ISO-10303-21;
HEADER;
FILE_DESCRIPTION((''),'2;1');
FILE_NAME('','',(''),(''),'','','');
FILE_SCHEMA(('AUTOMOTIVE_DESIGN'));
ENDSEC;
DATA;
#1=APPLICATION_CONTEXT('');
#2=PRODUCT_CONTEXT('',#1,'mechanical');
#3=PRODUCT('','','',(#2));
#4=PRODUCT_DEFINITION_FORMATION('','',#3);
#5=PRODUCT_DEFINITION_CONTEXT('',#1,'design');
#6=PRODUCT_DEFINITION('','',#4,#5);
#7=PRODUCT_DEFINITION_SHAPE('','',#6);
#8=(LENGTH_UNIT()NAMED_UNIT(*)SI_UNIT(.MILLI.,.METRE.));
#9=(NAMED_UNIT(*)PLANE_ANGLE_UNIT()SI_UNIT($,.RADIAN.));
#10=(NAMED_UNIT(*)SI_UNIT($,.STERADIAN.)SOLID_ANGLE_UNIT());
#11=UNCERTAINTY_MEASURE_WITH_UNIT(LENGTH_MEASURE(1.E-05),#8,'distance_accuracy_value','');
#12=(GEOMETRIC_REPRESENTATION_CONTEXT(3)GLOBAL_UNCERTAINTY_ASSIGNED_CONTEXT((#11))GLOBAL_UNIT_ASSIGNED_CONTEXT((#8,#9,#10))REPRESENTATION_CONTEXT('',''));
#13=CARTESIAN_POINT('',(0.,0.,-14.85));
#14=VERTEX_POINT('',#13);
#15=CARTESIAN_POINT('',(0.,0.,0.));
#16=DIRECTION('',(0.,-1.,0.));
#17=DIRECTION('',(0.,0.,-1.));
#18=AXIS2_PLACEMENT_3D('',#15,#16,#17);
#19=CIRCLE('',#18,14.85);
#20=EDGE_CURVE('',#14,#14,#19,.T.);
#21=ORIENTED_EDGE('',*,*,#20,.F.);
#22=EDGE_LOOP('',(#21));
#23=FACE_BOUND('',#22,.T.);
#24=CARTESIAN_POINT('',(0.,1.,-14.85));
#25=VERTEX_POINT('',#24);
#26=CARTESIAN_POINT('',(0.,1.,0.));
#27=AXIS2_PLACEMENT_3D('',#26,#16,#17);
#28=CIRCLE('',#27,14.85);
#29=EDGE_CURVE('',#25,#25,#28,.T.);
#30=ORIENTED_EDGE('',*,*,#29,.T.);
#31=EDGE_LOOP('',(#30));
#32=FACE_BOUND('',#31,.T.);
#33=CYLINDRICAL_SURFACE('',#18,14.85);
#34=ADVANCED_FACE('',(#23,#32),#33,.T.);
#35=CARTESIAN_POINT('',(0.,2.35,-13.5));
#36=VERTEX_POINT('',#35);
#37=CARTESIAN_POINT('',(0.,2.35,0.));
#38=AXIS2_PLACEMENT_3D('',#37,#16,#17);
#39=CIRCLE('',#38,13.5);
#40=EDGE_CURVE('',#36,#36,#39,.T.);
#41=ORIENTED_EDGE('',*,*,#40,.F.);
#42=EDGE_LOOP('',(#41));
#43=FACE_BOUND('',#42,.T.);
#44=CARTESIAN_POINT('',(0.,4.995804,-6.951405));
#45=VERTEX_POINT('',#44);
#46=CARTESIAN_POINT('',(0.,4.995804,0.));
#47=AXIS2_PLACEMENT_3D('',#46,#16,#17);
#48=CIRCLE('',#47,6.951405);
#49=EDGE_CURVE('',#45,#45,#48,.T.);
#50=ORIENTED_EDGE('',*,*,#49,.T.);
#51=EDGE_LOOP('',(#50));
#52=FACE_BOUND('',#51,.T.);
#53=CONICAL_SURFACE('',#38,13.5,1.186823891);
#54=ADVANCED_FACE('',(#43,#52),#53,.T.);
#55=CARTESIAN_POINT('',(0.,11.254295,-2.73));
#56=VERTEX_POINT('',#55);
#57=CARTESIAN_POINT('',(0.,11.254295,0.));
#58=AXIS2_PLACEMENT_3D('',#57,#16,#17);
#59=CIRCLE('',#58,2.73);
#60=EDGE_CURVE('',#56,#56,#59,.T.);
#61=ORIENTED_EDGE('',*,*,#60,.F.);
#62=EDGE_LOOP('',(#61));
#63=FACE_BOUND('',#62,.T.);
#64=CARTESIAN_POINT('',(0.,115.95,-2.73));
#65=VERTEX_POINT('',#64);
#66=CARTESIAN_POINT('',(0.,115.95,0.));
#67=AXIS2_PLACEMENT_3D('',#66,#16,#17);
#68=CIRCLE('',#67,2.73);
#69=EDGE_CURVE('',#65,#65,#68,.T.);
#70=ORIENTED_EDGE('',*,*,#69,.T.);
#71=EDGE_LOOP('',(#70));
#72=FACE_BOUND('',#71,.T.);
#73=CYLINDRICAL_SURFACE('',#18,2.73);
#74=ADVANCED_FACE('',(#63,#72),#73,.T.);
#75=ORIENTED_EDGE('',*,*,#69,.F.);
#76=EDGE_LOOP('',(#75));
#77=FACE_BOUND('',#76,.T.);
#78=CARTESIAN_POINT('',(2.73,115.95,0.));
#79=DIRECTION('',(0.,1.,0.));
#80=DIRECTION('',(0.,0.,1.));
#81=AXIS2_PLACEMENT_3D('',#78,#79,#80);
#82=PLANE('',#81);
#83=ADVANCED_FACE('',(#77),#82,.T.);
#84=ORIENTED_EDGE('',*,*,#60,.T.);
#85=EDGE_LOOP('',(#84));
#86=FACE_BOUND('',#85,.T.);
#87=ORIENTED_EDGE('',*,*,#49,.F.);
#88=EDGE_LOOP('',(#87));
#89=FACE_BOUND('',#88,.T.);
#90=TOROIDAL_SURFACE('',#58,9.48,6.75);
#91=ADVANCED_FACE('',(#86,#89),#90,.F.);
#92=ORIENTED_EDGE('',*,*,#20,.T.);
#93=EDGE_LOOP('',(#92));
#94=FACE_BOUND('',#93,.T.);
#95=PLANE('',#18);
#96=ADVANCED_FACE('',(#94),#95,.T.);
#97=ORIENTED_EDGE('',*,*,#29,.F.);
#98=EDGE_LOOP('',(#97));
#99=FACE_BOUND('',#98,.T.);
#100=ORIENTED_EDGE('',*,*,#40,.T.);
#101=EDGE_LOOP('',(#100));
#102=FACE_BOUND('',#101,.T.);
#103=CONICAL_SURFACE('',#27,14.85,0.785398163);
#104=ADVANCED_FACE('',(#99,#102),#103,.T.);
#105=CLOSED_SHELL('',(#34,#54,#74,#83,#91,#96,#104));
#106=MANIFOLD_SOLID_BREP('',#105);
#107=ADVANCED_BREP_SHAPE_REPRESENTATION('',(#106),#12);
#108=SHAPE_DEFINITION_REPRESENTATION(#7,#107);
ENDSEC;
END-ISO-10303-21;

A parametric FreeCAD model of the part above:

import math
import FreeCAD as App
import Part
import Sketcher
Q = App.Units.Quantity

doc = App.newDocument("Part")
body = doc.addObject("PartDesign::Body", "Body")

sketch1 = body.newObject("Sketcher::SketchObject", "Sketch")
sketch1.AttachmentSupport = (doc.getObject("XY_Plane"), [""])
sketch1.MapMode = "FlatFace"
sketch1.addGeometry(Part.LineSegment(App.Vector(0, 0, 0), App.Vector(14.8, 0, 0)), False)
sketch1.addGeometry(Part.LineSegment(App.Vector(14.8, 0, 0), App.Vector(14.8, 1, 0)), False)
sketch1.addGeometry(Part.LineSegment(App.Vector(14.8, 1, 0), App.Vector(13.5, 2.4, 0)), False)
sketch1.addGeometry(Part.LineSegment(App.Vector(13.5, 2.4, 0), App.Vector(7, 5, 0)), False)
sketch1.addGeometry(Part.ArcOfCircle(Part.Circle(App.Vector(9.5, 11.3, 0), App.Vector(0, 0, 1), 6.8), math.radians(180), math.radians(248)), False)
sketch1.addGeometry(Part.LineSegment(App.Vector(2.7, 11.3, 0), App.Vector(2.7, 116, 0)), False)
sketch1.addGeometry(Part.LineSegment(App.Vector(2.7, 116, 0), App.Vector(0, 116, 0)), False)
sketch1.addGeometry(Part.LineSegment(App.Vector(0, 116, 0), App.Vector(0, 0, 0)), False)
sketch1.addConstraint(Sketcher.Constraint("Coincident", 0, 2, 1, 1))
sketch1.addConstraint(Sketcher.Constraint("Coincident", 1, 2, 2, 1))
sketch1.addConstraint(Sketcher.Constraint("Coincident", 2, 2, 3, 1))
sketch1.addConstraint(Sketcher.Constraint("Tangent", 3, 2, 4, 2))
sketch1.addConstraint(Sketcher.Constraint("Tangent", 4, 1, 5, 1))
sketch1.addConstraint(Sketcher.Constraint("Coincident", 5, 2, 6, 1))
sketch1.addConstraint(Sketcher.Constraint("Coincident", 6, 2, 7, 1))
sketch1.addConstraint(Sketcher.Constraint("Coincident", 7, 2, 0, 1))
sketch1.addConstraint(Sketcher.Constraint("Horizontal", 0))
sketch1.addConstraint(Sketcher.Constraint("Vertical", 1))
sketch1.addConstraint(Sketcher.Constraint("Vertical", 5))
sketch1.addConstraint(Sketcher.Constraint("Horizontal", 6))
sketch1.addConstraint(Sketcher.Constraint("Vertical", 7))
sketch1.addConstraint(Sketcher.Constraint("Coincident", 7, 2, -1, 1))
sketch1.addConstraint(Sketcher.Constraint("DistanceY", 1, 1, 1, 2, Q("1 mm")))
sketch1.addConstraint(Sketcher.Constraint("Angle", 2, Q("135 deg")))
sketch1.addConstraint(Sketcher.Constraint("Angle", 3, Q("158 deg")))
sketch1.addConstraint(Sketcher.Constraint("Radius", 4, Q("6.75 mm")))
sketch1.addConstraint(Sketcher.Constraint("DistanceX", 0, 1, 0, 2, Q("14.85 mm")))
sketch1.addConstraint(Sketcher.Constraint("DistanceX", 6, 2, 6, 1, Q("2.73 mm")))
sketch1.addConstraint(Sketcher.Constraint("DistanceY", 7, 2, 7, 1, Q("115.95 mm")))
sketch1.addConstraint(Sketcher.Constraint("DistanceX", -1, 1, 2, 2, Q("13.5 mm")))
revolution = body.newObject("PartDesign::Revolution", "Revolution")
revolution.Profile = sketch1
revolution.ReferenceAxis = (sketch1, ["V_Axis"])
revolution.Angle = 360

doc.recompute()
